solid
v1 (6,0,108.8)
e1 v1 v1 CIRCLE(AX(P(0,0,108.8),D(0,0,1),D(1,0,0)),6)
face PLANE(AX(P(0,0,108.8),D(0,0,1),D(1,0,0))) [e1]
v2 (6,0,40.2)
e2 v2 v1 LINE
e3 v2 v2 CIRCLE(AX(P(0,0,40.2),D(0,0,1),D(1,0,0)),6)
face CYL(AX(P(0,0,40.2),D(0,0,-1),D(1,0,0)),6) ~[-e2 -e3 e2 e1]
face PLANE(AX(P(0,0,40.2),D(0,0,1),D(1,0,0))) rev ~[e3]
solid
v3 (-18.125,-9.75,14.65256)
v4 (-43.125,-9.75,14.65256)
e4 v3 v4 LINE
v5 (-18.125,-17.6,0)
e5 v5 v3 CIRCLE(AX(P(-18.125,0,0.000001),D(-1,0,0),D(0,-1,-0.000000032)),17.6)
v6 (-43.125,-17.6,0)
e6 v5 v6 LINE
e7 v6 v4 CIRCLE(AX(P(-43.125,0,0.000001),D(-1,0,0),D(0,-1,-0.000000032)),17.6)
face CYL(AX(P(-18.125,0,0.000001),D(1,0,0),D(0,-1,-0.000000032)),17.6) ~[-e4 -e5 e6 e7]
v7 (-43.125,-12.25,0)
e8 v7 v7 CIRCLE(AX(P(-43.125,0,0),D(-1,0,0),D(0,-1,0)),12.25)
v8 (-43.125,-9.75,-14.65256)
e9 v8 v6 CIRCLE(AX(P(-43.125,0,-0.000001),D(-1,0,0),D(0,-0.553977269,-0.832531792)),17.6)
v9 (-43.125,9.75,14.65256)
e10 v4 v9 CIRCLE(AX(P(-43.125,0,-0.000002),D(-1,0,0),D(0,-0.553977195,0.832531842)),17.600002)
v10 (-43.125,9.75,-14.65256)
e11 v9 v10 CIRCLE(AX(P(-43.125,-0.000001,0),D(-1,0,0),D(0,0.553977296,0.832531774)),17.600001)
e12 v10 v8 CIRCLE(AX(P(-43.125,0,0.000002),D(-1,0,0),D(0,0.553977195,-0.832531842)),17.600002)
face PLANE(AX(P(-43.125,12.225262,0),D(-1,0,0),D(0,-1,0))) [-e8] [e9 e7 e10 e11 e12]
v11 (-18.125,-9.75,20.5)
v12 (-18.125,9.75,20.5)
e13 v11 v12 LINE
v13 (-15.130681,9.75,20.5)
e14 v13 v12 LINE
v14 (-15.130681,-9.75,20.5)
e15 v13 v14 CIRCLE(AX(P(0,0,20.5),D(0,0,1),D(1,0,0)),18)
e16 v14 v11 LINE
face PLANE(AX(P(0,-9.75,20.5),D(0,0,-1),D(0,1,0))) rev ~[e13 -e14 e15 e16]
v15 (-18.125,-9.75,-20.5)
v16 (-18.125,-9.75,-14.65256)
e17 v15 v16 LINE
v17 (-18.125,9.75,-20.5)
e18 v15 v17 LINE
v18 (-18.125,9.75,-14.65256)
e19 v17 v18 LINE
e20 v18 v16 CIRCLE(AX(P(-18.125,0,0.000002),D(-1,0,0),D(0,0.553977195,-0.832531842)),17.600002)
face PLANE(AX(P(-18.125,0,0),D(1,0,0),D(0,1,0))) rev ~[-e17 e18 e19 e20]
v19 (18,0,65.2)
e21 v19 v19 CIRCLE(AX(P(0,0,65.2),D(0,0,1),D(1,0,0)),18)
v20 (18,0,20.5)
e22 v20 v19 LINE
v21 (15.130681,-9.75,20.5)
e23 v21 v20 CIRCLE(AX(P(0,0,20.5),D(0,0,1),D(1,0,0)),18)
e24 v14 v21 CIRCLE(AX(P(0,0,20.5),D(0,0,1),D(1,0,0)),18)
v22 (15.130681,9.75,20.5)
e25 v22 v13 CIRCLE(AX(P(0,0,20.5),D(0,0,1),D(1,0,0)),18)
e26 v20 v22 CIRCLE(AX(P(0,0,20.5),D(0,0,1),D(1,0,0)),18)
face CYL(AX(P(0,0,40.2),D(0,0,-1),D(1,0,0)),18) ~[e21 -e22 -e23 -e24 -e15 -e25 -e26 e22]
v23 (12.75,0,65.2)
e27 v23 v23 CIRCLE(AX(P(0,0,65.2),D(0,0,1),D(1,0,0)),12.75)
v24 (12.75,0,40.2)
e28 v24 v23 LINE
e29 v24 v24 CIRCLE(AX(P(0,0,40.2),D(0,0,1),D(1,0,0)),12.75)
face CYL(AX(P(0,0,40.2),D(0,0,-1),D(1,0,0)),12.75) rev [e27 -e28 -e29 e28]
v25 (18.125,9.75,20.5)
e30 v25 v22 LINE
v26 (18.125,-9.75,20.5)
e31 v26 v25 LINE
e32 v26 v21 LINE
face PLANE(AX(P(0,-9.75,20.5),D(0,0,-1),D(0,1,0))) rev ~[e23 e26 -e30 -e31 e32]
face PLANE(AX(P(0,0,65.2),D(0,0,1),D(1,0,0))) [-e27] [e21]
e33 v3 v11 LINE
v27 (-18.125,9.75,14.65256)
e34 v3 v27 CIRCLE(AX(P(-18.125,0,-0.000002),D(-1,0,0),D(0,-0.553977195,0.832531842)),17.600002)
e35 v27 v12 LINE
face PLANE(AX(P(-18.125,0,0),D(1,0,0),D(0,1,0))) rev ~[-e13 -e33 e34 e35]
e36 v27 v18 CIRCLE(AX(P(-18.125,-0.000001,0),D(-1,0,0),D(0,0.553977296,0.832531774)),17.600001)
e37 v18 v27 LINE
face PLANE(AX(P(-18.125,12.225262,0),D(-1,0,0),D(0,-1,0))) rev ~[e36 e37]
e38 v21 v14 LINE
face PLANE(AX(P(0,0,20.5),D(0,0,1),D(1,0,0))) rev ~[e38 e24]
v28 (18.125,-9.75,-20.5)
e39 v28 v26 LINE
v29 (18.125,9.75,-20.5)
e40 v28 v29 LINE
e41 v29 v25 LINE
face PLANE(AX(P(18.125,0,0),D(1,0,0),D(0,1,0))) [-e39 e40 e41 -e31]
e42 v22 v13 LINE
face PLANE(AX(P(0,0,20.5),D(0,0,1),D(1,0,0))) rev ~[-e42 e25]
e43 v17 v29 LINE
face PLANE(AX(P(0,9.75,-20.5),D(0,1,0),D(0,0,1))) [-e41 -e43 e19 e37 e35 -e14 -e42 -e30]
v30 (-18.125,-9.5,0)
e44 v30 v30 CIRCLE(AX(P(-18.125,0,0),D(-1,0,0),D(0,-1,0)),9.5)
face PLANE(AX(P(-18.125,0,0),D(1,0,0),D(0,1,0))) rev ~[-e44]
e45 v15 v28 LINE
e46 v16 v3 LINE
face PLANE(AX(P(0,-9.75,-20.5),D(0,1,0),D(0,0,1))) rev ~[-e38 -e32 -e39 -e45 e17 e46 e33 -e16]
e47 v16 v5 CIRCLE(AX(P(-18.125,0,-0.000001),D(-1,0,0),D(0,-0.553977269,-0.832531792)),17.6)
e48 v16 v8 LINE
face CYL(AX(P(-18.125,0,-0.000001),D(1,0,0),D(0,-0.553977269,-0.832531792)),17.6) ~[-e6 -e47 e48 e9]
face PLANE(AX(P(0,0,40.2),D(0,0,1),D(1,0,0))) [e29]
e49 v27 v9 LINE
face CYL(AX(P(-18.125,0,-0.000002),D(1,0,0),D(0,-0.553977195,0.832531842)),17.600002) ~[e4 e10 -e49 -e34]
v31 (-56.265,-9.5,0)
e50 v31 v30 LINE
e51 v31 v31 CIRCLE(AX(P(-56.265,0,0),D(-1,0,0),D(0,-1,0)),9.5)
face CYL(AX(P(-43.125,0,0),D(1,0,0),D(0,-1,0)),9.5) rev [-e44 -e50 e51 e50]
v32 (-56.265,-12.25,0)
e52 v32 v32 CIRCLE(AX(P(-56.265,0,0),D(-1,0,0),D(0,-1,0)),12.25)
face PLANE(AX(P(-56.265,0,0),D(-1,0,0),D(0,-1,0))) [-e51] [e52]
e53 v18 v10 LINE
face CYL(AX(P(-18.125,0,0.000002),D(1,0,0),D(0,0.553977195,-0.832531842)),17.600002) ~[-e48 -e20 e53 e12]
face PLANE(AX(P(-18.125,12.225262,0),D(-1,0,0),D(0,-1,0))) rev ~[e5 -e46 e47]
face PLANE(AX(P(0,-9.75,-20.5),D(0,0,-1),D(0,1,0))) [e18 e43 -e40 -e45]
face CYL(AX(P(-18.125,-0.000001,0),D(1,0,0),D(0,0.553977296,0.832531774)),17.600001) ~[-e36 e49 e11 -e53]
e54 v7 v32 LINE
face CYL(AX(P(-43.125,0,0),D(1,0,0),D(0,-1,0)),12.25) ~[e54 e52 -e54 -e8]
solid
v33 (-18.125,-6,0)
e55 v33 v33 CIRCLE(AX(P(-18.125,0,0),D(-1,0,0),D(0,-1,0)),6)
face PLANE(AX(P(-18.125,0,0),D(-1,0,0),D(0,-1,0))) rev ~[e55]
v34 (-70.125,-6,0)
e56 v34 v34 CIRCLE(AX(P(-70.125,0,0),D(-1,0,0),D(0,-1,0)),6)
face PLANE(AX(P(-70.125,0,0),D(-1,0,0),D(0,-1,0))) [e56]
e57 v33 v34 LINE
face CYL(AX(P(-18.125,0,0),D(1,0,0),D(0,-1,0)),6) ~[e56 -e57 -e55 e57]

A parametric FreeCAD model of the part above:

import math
import FreeCAD as App
import Part
import Sketcher
from FreeCAD import Vector
Q = App.Units.Quantity

doc = App.newDocument("Part")
body = doc.addObject("PartDesign::Body", "Body")

sketch1 = body.newObject("Sketcher::SketchObject", "Sketch")
sketch1.AttachmentSupport = (doc.getObject("YZ_Plane"), [""])
sketch1.MapMode = "FlatFace"
sketch1.addGeometry([
    Part.LineSegment(Vector(-9.75, 20.5, 0), Vector(-9.75, -20.5, 0)),
    Part.LineSegment(Vector(-9.75, -20.5, 0), Vector(9.75, -20.5, 0)),
    Part.LineSegment(Vector(9.75, -20.5, 0), Vector(9.75, 20.5, 0)),
    Part.LineSegment(Vector(9.75, 20.5, 0), Vector(-9.75, 20.5, 0)),
], False)
sketch1.addConstraint([
    Sketcher.Constraint("Coincident", 0, 2, 1, 1),
    Sketcher.Constraint("Coincident", 1, 2, 2, 1),
    Sketcher.Constraint("Coincident", 2, 2, 3, 1),
    Sketcher.Constraint("Coincident", 3, 2, 0, 1),
    Sketcher.Constraint("Vertical", 0),
    Sketcher.Constraint("Horizontal", 1),
    Sketcher.Constraint("Vertical", 2),
    Sketcher.Constraint("Horizontal", 3),
    Sketcher.Constraint("Symmetric", 0, 2, 2, 2, -1, 1),
    Sketcher.Constraint("DistanceY", 0, 2, 0, 1, Q("41 mm")),
    Sketcher.Constraint("DistanceX", 1, 1, 1, 2, Q("19.5 mm")),
])
pad1 = body.newObject("PartDesign::Pad", "Pad")
pad1.Profile = sketch1
pad1.Length = 36.25
pad1.Midplane = True

sketch2 = body.newObject("Sketcher::SketchObject", "Sketch001")
sketch2.AttachmentSupport = (doc.getObject("XY_Plane"), [""])
sketch2.MapMode = "FlatFace"
sketch2.AttachmentOffset = App.Placement(Vector(0, 0, 20.5), App.Rotation())
sketch2.addGeometry(Part.Circle(Vector(0, 0, 0), Vector(0, 0, 1), 18), False)
sketch2.addConstraint([
    Sketcher.Constraint("Coincident", 0, 3, -1, 1),
    Sketcher.Constraint("Diameter", 0, Q("36 mm")),
])
pad2 = body.newObject("PartDesign::Pad", "Pad001")
pad2.Profile = sketch2
pad2.Length = 19.7

sketch3 = body.newObject("Sketcher::SketchObject", "Sketch002")
sketch3.AttachmentSupport = (doc.getObject("XY_Plane"), [""])
sketch3.MapMode = "FlatFace"
sketch3.AttachmentOffset = App.Placement(Vector(0, 0, 40.2), App.Rotation())
sketch3.addGeometry([
    Part.Circle(Vector(0, 0, 0), Vector(0, 0, 1), 18),
    Part.Circle(Vector(0, 0, 0), Vector(0, 0, 1), 12.75),
], False)
sketch3.addConstraint([
    Sketcher.Constraint("Coincident", 0, 3, -1, 1),
    Sketcher.Constraint("Coincident", 1, 3, -1, 1),
    Sketcher.Constraint("Diameter", 0, Q("36 mm")),
    Sketcher.Constraint("Diameter", 1, Q("25.5 mm")),
])
pad3 = body.newObject("PartDesign::Pad", "Pad002")
pad3.Profile = sketch3
pad3.Length = 25

sketch4 = body.newObject("Sketcher::SketchObject", "Sketch003")
sketch4.AttachmentSupport = (doc.getObject("YZ_Plane"), [""])
sketch4.MapMode = "FlatFace"
sketch4.AttachmentOffset = App.Placement(Vector(0, 0, -18.125), App.Rotation())
sketch4.addGeometry([
    Part.ArcOfCircle(Part.Circle(Vector(-0.000001, 0, 0), Vector(0, 0, 1), 17.600001), math.radians(-56.359698), math.radians(56.359698)),
    Part.ArcOfCircle(Part.Circle(Vector(0, 0.000002, 0), Vector(0, 0, 1), 17.600002), math.radians(-123.640295), math.radians(-56.359705)),
    Part.ArcOfCircle(Part.Circle(Vector(0, -0.000001, 0), Vector(0, 0, 1), 17.6), math.radians(179.999998), math.radians(236.359699)),
    Part.ArcOfCircle(Part.Circle(Vector(0, 0.000001, 0), Vector(0, 0, 1), 17.6), math.radians(123.640301), math.radians(180.000002)),
    Part.ArcOfCircle(Part.Circle(Vector(0, -0.000002, 0), Vector(0, 0, 1), 17.600002), math.radians(56.359705), math.radians(123.640295)),
    Part.Circle(Vector(0, 0, 0), Vector(0, 0, 1), 9.5),
], False)
sketch4.addConstraint([
    Sketcher.Constraint("Tangent", 0, 1, 1, 2),
    Sketcher.Constraint("Tangent", 1, 1, 2, 2),
    Sketcher.Constraint("Tangent", 2, 1, 3, 2),
    Sketcher.Constraint("Tangent", 3, 1, 4, 2),
    Sketcher.Constraint("Tangent", 4, 1, 0, 2),
    Sketcher.Constraint("Coincident", 0, 3, -1, 1),
    Sketcher.Constraint("Coincident", 2, 3, -1, 1),
    Sketcher.Constraint("Coincident", 5, 3, -1, 1),
    Sketcher.Constraint("PointOnObject", 2, 1, -1),
    Sketcher.Constraint("Horizontal", 0, 1, 1, 1),
    Sketcher.Constraint("Horizontal", 3, 1, 4, 1),
    Sketcher.Constraint("Vertical", 1, 1, 3, 1),
    Sketcher.Constraint("Diameter", 5, Q("19 mm")),
    Sketcher.Constraint("Radius", 0, Q("17.600001 mm")),
    Sketcher.Constraint("DistanceX", -1, 1, 0, 1, Q("9.75 mm")),
])
pad4 = body.newObject("PartDesign::Pad", "Pad003")
pad4.Profile = sketch4
pad4.Length = 25
pad4.Reversed = True

sketch5 = body.newObject("Sketcher::SketchObject", "Sketch004")
sketch5.AttachmentSupport = (doc.getObject("YZ_Plane"), [""])
sketch5.MapMode = "FlatFace"
sketch5.AttachmentOffset = App.Placement(Vector(0, 0, -43.125), App.Rotation())
sketch5.addGeometry([
    Part.Circle(Vector(0, 0, 0), Vector(0, 0, 1), 12.25),
    Part.Circle(Vector(0, 0, 0), Vector(0, 0, 1), 9.5),
], False)
sketch5.addConstraint([
    Sketcher.Constraint("Coincident", 0, 3, -1, 1),
    Sketcher.Constraint("Coincident", 1, 3, -1, 1),
    Sketcher.Constraint("Diameter", 1, Q("19 mm")),
    Sketcher.Constraint("Diameter", 0, Q("24.5 mm")),
])
pad5 = body.newObject("PartDesign::Pad", "Pad004")
pad5.Profile = sketch5
pad5.Length = 13.14
pad5.Reversed = True
body2 = doc.addObject("PartDesign::Body", "Body001")

sketch6 = body2.newObject("Sketcher::SketchObject", "Sketch005")
sketch6.AttachmentSupport = (doc.getObject("XY_Plane001"), [""])
sketch6.MapMode = "FlatFace"
sketch6.AttachmentOffset = App.Placement(Vector(0, 0, 40.2), App.Rotation())
sketch6.addGeometry(Part.Circle(Vector(0, 0, 0), Vector(0, 0, 1), 6), False)
sketch6.addConstraint([
    Sketcher.Constraint("Coincident", 0, 3, -1, 1),
    Sketcher.Constraint("Diameter", 0, Q("12 mm")),
])
pad6 = body2.newObject("PartDesign::Pad", "Pad005")
pad6.Profile = sketch6
pad6.Length = 68.6
body3 = doc.addObject("PartDesign::Body", "Body002")

sketch7 = body3.newObject("Sketcher::SketchObject", "Sketch006")
sketch7.AttachmentSupport = (doc.getObject("YZ_Plane002"), [""])
sketch7.MapMode = "FlatFace"
sketch7.AttachmentOffset = App.Placement(Vector(0, 0, -18.125), App.Rotation())
sketch7.addGeometry(Part.Circle(Vector(0, 0, 0), Vector(0, 0, 1), 6), False)
sketch7.addConstraint([
    Sketcher.Constraint("Coincident", 0, 3, -1, 1),
    Sketcher.Constraint("Diameter", 0, Q("12 mm")),
])
pad7 = body3.newObject("PartDesign::Pad", "Pad006")
pad7.Profile = sketch7
pad7.Length = 52
pad7.Reversed = True

doc.recompute()
